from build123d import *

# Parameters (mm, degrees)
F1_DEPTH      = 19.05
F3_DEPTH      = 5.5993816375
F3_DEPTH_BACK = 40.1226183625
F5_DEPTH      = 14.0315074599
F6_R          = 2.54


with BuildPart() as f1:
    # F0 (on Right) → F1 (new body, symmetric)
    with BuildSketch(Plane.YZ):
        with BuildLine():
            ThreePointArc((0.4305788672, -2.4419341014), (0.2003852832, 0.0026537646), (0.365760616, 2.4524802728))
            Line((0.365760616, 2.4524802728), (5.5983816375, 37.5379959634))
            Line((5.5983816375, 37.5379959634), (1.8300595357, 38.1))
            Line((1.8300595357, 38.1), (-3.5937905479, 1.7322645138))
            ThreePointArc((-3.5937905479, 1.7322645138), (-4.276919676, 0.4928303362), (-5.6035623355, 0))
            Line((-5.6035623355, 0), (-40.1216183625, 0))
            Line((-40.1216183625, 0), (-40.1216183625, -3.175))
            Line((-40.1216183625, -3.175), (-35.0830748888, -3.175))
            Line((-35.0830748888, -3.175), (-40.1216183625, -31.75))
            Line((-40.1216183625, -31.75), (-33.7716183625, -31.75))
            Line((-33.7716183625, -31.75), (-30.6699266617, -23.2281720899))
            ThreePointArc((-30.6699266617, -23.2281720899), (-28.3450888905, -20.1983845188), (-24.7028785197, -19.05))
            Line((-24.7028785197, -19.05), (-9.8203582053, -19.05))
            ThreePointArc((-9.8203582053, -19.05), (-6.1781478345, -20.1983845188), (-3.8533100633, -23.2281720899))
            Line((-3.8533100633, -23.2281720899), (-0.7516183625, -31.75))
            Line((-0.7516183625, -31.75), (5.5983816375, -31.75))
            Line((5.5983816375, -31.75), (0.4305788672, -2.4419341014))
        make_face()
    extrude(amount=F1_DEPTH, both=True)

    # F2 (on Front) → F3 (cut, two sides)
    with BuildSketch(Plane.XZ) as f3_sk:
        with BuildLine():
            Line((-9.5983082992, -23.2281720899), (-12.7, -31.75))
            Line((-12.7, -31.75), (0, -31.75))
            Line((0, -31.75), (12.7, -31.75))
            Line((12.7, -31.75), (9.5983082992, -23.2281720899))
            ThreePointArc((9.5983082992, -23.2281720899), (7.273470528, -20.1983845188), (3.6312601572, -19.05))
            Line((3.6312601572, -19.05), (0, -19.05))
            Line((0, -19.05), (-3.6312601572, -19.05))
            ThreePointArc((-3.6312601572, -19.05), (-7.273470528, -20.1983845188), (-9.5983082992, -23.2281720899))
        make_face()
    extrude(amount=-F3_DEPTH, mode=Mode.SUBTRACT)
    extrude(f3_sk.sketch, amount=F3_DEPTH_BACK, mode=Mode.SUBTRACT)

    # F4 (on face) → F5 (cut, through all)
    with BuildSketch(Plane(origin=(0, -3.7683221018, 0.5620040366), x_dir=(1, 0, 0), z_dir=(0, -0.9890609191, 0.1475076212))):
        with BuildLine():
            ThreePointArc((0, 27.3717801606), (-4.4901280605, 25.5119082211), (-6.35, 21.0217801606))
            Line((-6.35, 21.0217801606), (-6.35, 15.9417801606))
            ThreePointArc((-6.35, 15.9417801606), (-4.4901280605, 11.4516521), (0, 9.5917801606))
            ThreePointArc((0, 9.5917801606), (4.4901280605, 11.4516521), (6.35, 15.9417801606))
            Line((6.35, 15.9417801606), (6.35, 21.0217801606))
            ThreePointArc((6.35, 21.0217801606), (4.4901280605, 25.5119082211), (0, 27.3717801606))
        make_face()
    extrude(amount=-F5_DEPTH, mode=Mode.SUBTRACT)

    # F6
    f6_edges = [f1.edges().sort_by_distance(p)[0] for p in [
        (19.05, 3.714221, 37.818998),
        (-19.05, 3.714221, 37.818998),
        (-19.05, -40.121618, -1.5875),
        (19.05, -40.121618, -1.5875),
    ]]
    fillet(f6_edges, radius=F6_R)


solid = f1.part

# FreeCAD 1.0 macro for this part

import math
import FreeCAD as App
import Part
import Sketcher

V = App.Vector
Q = App.Units.Quantity


def edges_at(feature, points):
    """Names of the edges that pass closest to the given points."""
    edges = feature.Shape.Edges
    near = lambda p: min(range(len(edges)), key=lambda i: edges[i].distToShape(Part.Vertex(*p))[0])
    return sorted({f"Edge{near(p) + 1}" for p in points})

doc = App.newDocument("Part")
body = doc.addObject("PartDesign::Body", "Body")

# Sketch on YZ plane
sketch1 = body.newObject("Sketcher::SketchObject", "Sketch")
sketch1.AttachmentSupport = (doc.getObject("YZ_Plane"), [""])
sketch1.MapMode = "FlatFace"
sketch1.addGeometry(Part.ArcOfCircle(Part.Circle(V(15.4, 0.2, 0), V(0, 0, 1), 15.2), math.radians(171.52), math.radians(190)), False)
sketch1.addGeometry(Part.LineSegment(V(0.4, 2.5, 0), V(5.6, 37.5, 0)), False)
sketch1.addGeometry(Part.LineSegment(V(5.6, 37.5, 0), V(1.8, 38.1, 0)), False)
sketch1.addGeometry(Part.LineSegment(V(1.8, 38.1, 0), V(-3.6, 1.7, 0)), False)
sketch1.addGeometry(Part.ArcOfCircle(Part.Circle(V(-5.6, 2, 0), V(0, 0, 1), 2), math.radians(-90), math.radians(-8)), False)
sketch1.addGeometry(Part.LineSegment(V(-5.6, 0, 0), V(-40.1, 0, 0)), False)
sketch1.addGeometry(Part.LineSegment(V(-40.1, 0, 0), V(-40.1, -3.2, 0)), False)
sketch1.addGeometry(Part.LineSegment(V(-40.1, -3.2, 0), V(-35.1, -3.2, 0)), False)
sketch1.addGeometry(Part.LineSegment(V(-35.1, -3.2, 0), V(-40.1, -31.8, 0)), False)
sketch1.addGeometry(Part.LineSegment(V(-40.1, -31.8, 0), V(-33.8, -31.8, 0)), False)
sketch1.addGeometry(Part.LineSegment(V(-33.8, -31.8, 0), V(-30.7, -23.2, 0)), False)
sketch1.addGeometry(Part.ArcOfCircle(Part.Circle(V(-24.7, -25.4, 0), V(0, 0, 1), 6.3), math.radians(90), math.radians(160)), False)
sketch1.addGeometry(Part.LineSegment(V(-24.7, -19.1, 0), V(-9.8, -19.1, 0)), False)
sketch1.addGeometry(Part.ArcOfCircle(Part.Circle(V(-9.8, -25.4, 0), V(0, 0, 1), 6.3), math.radians(20), math.radians(90)), False)
sketch1.addGeometry(Part.LineSegment(V(-3.9, -23.2, 0), V(-0.8, -31.8, 0)), False)
sketch1.addGeometry(Part.LineSegment(V(-0.8, -31.8, 0), V(5.6, -31.8, 0)), False)
sketch1.addGeometry(Part.LineSegment(V(5.6, -31.8, 0), V(0.4, -2.4, 0)), False)
sketch1.addConstraint(Sketcher.Constraint("Tangent", 0, 1, 1, 1))
sketch1.addConstraint(Sketcher.Constraint("Coincident", 1, 2, 2, 1))
sketch1.addConstraint(Sketcher.Constraint("Coincident", 2, 2, 3, 1))
sketch1.addConstraint(Sketcher.Constraint("Tangent", 3, 2, 4, 2))
sketch1.addConstraint(Sketcher.Constraint("Tangent", 4, 1, 5, 1))
sketch1.addConstraint(Sketcher.Constraint("Coincident", 5, 2, 6, 1))
sketch1.addConstraint(Sketcher.Constraint("Coincident", 6, 2, 7, 1))
sketch1.addConstraint(Sketcher.Constraint("Coincident", 7, 2, 8, 1))
sketch1.addConstraint(Sketcher.Constraint("Coincident", 8, 2, 9, 1))
sketch1.addConstraint(Sketcher.Constraint("Coincident", 9, 2, 10, 1))
sketch1.addConstraint(Sketcher.Constraint("Tangent", 10, 2, 11, 2))
sketch1.addConstraint(Sketcher.Constraint("Tangent", 11, 1, 12, 1))
sketch1.addConstraint(Sketcher.Constraint("Tangent", 12, 2, 13, 2))
sketch1.addConstraint(Sketcher.Constraint("Tangent", 13, 1, 14, 1))
sketch1.addConstraint(Sketcher.Constraint("Coincident", 14, 2, 15, 1))
sketch1.addConstraint(Sketcher.Constraint("Coincident", 15, 2, 16, 1))
sketch1.addConstraint(Sketcher.Constraint("Tangent", 16, 2, 0, 2))
sketch1.addConstraint(Sketcher.Constraint("Horizontal", 5))
sketch1.addConstraint(Sketcher.Constraint("Vertical", 6))
sketch1.addConstraint(Sketcher.Constraint("Horizontal", 7))
sketch1.addConstraint(Sketcher.Constraint("Horizontal", 9))
sketch1.addConstraint(Sketcher.Constraint("Horizontal", 12))
sketch1.addConstraint(Sketcher.Constraint("Horizontal", 15))
sketch1.addConstraint(Sketcher.Constraint("Equal", 11, 13))
sketch1.addConstraint(Sketcher.Constraint("PointOnObject", 4, 1, -1))
sketch1.addConstraint(Sketcher.Constraint("Perpendicular", 1, 2))
sketch1.addConstraint(Sketcher.Constraint("Perpendicular", 2, 3))
sketch1.addConstraint(Sketcher.Constraint("Horizontal", 10, 2, 13, 1))
sketch1.addConstraint(Sketcher.Constraint("Horizontal", 9, 2, 14, 2))
sketch1.addConstraint(Sketcher.Constraint("Vertical", 6, 2, 8, 2))
sketch1.addConstraint(Sketcher.Constraint("Vertical", 1, 2, 15, 2))
sketch1.addConstraint(Sketcher.Constraint("Equal", 9, 15))
sketch1.addConstraint(Sketcher.Constraint("Radius", 0, Q("0.6 in")))
sketch1.addConstraint(Sketcher.Constraint("Radius", 4, Q("0.08 in")))
sketch1.addConstraint(Sketcher.Constraint("Radius", 11, Q("0.25 in")))
sketch1.addConstraint(Sketcher.Constraint("DistanceY", 11, 3, -1, 1, Q("1 in")))
sketch1.addConstraint(Sketcher.Constraint("Angle", 8, Q("-100 deg")))
sketch1.addConstraint(Sketcher.Constraint("Angle", 10, Q("70 deg")))
sketch1.addConstraint(Sketcher.Constraint("Angle", 16, Q("100 deg")))
sketch1.addConstraint(Sketcher.Constraint("DistanceX", 9, 1, 9, 2, Q("0.25 in")))
sketch1.addConstraint(Sketcher.Constraint("DistanceY", -1, 1, 2, 2, Q("1.5 in")))
sketch1.addConstraint(Sketcher.Constraint("DistanceY", 9, 2, 11, 1, Q("0.5 in")))
sketch1.addConstraint(Sketcher.Constraint("Distance", 2, Q("0.15 in")))
sketch1.addConstraint(Sketcher.Constraint("DistanceY", 6, 2, 6, 1, Q("0.125 in")))
sketch1.addConstraint(Sketcher.Constraint("DistanceX", -1, 1, 0, 1, Q("0.0144 in")))
sketch1.addConstraint(Sketcher.Constraint("DistanceX", 12, 1, 12, 2, Q("14.88252 mm")))
sketch1.addConstraint(Sketcher.Constraint("DistanceX", 0, 1, 2, 2, Q("1.464299 mm")))
pad1 = body.newObject("PartDesign::Pad", "Pad")
pad1.Profile = sketch1
pad1.Length = Q("1.5 in")
pad1.Midplane = True

# Sketch on XZ plane
sketch2 = body.newObject("Sketcher::SketchObject", "Sketch001")
sketch2.AttachmentSupport = (doc.getObject("XZ_Plane"), [""])
sketch2.MapMode = "FlatFace"
sketch2.addGeometry(Part.LineSegment(V(-10, -23, 0), V(-13, -32, 0)), False)
sketch2.addGeometry(Part.LineSegment(V(-13, -32, 0), V(13, -32, 0)), False)
sketch2.addGeometry(Part.LineSegment(V(13, -32, 0), V(10, -23, 0)), False)
sketch2.addGeometry(Part.ArcOfCircle(Part.Circle(V(4, -25, 0), V(0, 0, 1), 6), math.radians(20), math.radians(90)), False)
sketch2.addGeometry(Part.LineSegment(V(4, -19, 0), V(-4, -19, 0)), False)
sketch2.addGeometry(Part.ArcOfCircle(Part.Circle(V(-4, -25, 0), V(0, 0, 1), 6), math.radians(90), math.radians(160)), False)
sketch2.addConstraint(Sketcher.Constraint("Coincident", 0, 2, 1, 1))
sketch2.addConstraint(Sketcher.Constraint("Coincident", 1, 2, 2, 1))
sketch2.addConstraint(Sketcher.Constraint("Tangent", 2, 2, 3, 1))
sketch2.addConstraint(Sketcher.Constraint("Tangent", 3, 2, 4, 1))
sketch2.addConstraint(Sketcher.Constraint("Tangent", 4, 2, 5, 1))
sketch2.addConstraint(Sketcher.Constraint("Tangent", 5, 2, 0, 1))
sketch2.addConstraint(Sketcher.Constraint("Horizontal", 1))
sketch2.addConstraint(Sketcher.Constraint("Horizontal", 4))
sketch2.addConstraint(Sketcher.Constraint("Equal", 3, 5))
sketch2.addConstraint(Sketcher.Constraint("Symmetric", 2, 2, 5, 2, -2))
sketch2.addConstraint(Sketcher.Constraint("DistanceX", 1, 1, 1, 2, Q("1 in")))
sketch2.addConstraint(Sketcher.Constraint("Radius", 3, Q("0.25 in")))
sketch2.addConstraint(Sketcher.Constraint("DistanceY", 3, 3, -1, 1, Q("1 in")))
sketch2.addConstraint(Sketcher.Constraint("Angle", 0, Q("-110 deg")))
sketch2.addConstraint(Sketcher.Constraint("DistanceY", 1, 2, 3, 2, Q("0.5 in")))
pocket1 = body.newObject("PartDesign::Pocket", "Pocket")
pocket1.Profile = sketch2
pocket1.Type = "ThroughAll"
pocket1.Midplane = True

# Sketch on an angled plane
sketch3 = body.newObject("Sketcher::SketchObject", "Sketch002")
sketch3.Placement = App.Placement(V(0, -3.768322, 0.562004), App.Rotation(V(1, 0, 0), V(0, 0.147507621, 0.989060919), V(0, -0.989060919, 0.147507621), "ZXY"))
sketch3.addGeometry(Part.ArcOfCircle(Part.Circle(V(0, 21, 0), V(0, 0, 1), 6), math.radians(90), math.radians(180)), False)
sketch3.addGeometry(Part.LineSegment(V(-6, 21, 0), V(-6, 16, 0)), False)
sketch3.addGeometry(Part.ArcOfCircle(Part.Circle(V(0, 16, 0), V(0, 0, 1), 6), math.radians(180), math.radians(270)), False)
sketch3.addGeometry(Part.ArcOfCircle(Part.Circle(V(0, 16, 0), V(0, 0, 1), 6), math.radians(-90), math.radians(0)), False)
sketch3.addGeometry(Part.LineSegment(V(6, 16, 0), V(6, 21, 0)), False)
sketch3.addGeometry(Part.ArcOfCircle(Part.Circle(V(0, 21, 0), V(0, 0, 1), 6), math.radians(0), math.radians(90)), False)
sketch3.addConstraint(Sketcher.Constraint("Tangent", 0, 2, 1, 1))
sketch3.addConstraint(Sketcher.Constraint("Tangent", 1, 2, 2, 1))
sketch3.addConstraint(Sketcher.Constraint("Tangent", 2, 2, 3, 1))
sketch3.addConstraint(Sketcher.Constraint("Tangent", 3, 2, 4, 1))
sketch3.addConstraint(Sketcher.Constraint("Tangent", 4, 2, 5, 1))
sketch3.addConstraint(Sketcher.Constraint("Tangent", 5, 2, 0, 1))
sketch3.addConstraint(Sketcher.Constraint("Vertical", 1))
sketch3.addConstraint(Sketcher.Constraint("Vertical", 4))
sketch3.addConstraint(Sketcher.Constraint("Equal", 0, 2))
sketch3.addConstraint(Sketcher.Constraint("Equal", 2, 3))
sketch3.addConstraint(Sketcher.Constraint("PointOnObject", 0, 3, -2))
sketch3.addConstraint(Sketcher.Constraint("PointOnObject", 2, 2, -2))
sketch3.addConstraint(Sketcher.Constraint("PointOnObject", 5, 2, -2))
sketch3.addConstraint(Sketcher.Constraint("Radius", 0, Q("0.25 in")))
sketch3.addConstraint(Sketcher.Constraint("DistanceY", 1, 2, 1, 1, Q("0.2 in")))
sketch3.addConstraint(Sketcher.Constraint("DistanceY", -1, 1, 0, 3, Q("21.02178 mm")))
pocket2 = body.newObject("PartDesign::Pocket", "Pocket001")
pocket2.Profile = sketch3
pocket2.Type = "ThroughAll"
doc.recompute()

fillet = body.newObject("PartDesign::Fillet", "Fillet")
fillet.Base = (pocket2, edges_at(pocket2, [
    (19.05, 3.714, 37.819),
    (-19.05, 3.714, 37.819),
    (-19.05, -40.122, -1.587),
    (19.05, -40.122, -1.587),
]))
fillet.Radius = Q("0.1 in")

doc.recompute()
